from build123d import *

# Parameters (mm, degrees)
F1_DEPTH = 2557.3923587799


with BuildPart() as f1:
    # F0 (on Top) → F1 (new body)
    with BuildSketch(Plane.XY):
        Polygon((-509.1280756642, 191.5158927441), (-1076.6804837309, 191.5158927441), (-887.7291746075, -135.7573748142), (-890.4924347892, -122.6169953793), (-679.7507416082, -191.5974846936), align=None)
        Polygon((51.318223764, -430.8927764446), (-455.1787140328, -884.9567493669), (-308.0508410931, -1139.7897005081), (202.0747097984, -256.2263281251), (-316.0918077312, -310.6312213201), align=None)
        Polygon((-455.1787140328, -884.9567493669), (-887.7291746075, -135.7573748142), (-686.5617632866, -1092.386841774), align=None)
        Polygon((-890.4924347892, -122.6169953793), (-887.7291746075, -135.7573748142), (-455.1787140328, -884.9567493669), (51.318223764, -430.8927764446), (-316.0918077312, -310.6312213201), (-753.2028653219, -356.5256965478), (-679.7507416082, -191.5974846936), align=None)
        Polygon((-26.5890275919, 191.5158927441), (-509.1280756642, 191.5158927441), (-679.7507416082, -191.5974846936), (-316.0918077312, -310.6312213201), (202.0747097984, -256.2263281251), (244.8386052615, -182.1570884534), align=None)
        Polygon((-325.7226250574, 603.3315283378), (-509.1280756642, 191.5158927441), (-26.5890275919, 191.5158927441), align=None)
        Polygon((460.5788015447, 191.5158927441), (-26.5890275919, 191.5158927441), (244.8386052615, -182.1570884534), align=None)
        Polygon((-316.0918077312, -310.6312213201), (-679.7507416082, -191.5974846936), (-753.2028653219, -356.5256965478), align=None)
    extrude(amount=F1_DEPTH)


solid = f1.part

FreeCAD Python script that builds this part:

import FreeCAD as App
import Part
import Sketcher
from FreeCAD import Vector
Q = App.Units.Quantity

doc = App.newDocument("Part")
params = doc.addObject("Spreadsheet::Sheet", "Params")
for row, (alias, value) in enumerate([
    ("pad1_length", "2557.392359 mm"),
], start=1):
    params.set(f"A{row}", alias)
    params.set(f"B{row}", "=" + value)
    params.setAlias(f"B{row}", alias)

body = doc.addObject("PartDesign::Body", "Body")

# Sketch on XY plane
sketch1 = doc.addObject("Sketcher::SketchObject", "Sketch")
body.addObject(sketch1)
sketch1.AttachmentSupport = (doc.XY_Plane, [""])
sketch1.MapMode = "FlatFace"
sketch1.addGeometry(Part.LineSegment(Vector(-1077, 192, 0), Vector(-888, -136, 0)), False)
sketch1.addGeometry(Part.LineSegment(Vector(-888, -136, 0), Vector(-687, -1092, 0)), False)
sketch1.addGeometry(Part.LineSegment(Vector(-687, -1092, 0), Vector(-455, -885, 0)), False)
sketch1.addGeometry(Part.LineSegment(Vector(-455, -885, 0), Vector(-308, -1140, 0)), False)
sketch1.addGeometry(Part.LineSegment(Vector(-308, -1140, 0), Vector(461, 192, 0)), False)
sketch1.addGeometry(Part.LineSegment(Vector(461, 192, 0), Vector(-27, 192, 0)), False)
sketch1.addGeometry(Part.LineSegment(Vector(-27, 192, 0), Vector(-326, 603, 0)), False)
sketch1.addGeometry(Part.LineSegment(Vector(-326, 603, 0), Vector(-509, 192, 0)), False)
sketch1.addGeometry(Part.LineSegment(Vector(-509, 192, 0), Vector(-1077, 192, 0)), False)
sketch1.addConstraint(Sketcher.Constraint("Coincident", 0, 2, 1, 1))
sketch1.addConstraint(Sketcher.Constraint("Coincident", 1, 2, 2, 1))
sketch1.addConstraint(Sketcher.Constraint("Coincident", 2, 2, 3, 1))
sketch1.addConstraint(Sketcher.Constraint("Coincident", 3, 2, 4, 1))
sketch1.addConstraint(Sketcher.Constraint("Coincident", 4, 2, 5, 1))
sketch1.addConstraint(Sketcher.Constraint("Coincident", 5, 2, 6, 1))
sketch1.addConstraint(Sketcher.Constraint("Coincident", 6, 2, 7, 1))
sketch1.addConstraint(Sketcher.Constraint("Coincident", 7, 2, 8, 1))
sketch1.addConstraint(Sketcher.Constraint("Coincident", 8, 2, 0, 1))
sketch1.addConstraint(Sketcher.Constraint("Horizontal", 5))
sketch1.addConstraint(Sketcher.Constraint("Horizontal", 8))
sketch1.addConstraint(Sketcher.Constraint("Parallel", 0, 3))
sketch1.addConstraint(Sketcher.Constraint("Horizontal", 5, 2, 7, 2))
sketch1.addConstraint(Sketcher.Constraint("Angle", 0, Q("-60 deg")))
sketch1.addConstraint(Sketcher.Constraint("Angle", 4, Q("60 deg")))
sketch1.addConstraint(Sketcher.Constraint("DistanceX", 5, 2, 5, 1, Q("487.167829 mm")))
sketch1.addConstraint(Sketcher.Constraint("DistanceX", 8, 2, 8, 1, Q("567.552408 mm")))
sketch1.addConstraint(Sketcher.Constraint("DistanceY", 3, 2, -1, 1, Q("1139.789701 mm")))
sketch1.addConstraint(Sketcher.Constraint("DistanceX", -1, 1, 4, 2, Q("460.578802 mm")))
sketch1.addConstraint(Sketcher.Constraint("DistanceX", 0, 2, 7, 2, Q("378.601099 mm")))
sketch1.addConstraint(Sketcher.Constraint("Distance", 1, Q("977.55218 mm")))
sketch1.addConstraint(Sketcher.Constraint("DistanceY", 1, 2, -1, 1, Q("1092.386842 mm")))
sketch1.addConstraint(Sketcher.Constraint("DistanceY", 2, 2, -1, 1, Q("884.956749 mm")))
sketch1.addConstraint(Sketcher.Constraint("DistanceX", 3, 2, -1, 1, Q("308.050841 mm")))
sketch1.addConstraint(Sketcher.Constraint("DistanceY", -1, 1, 6, 2, Q("603.331528 mm")))
sketch1.addConstraint(Sketcher.Constraint("DistanceX", 1, 2, 2, 2, Q("231.383049 mm")))
sketch1.addConstraint(Sketcher.Constraint("DistanceX", 0, 2, 6, 2, Q("562.00655 mm")))
pad1 = doc.addObject("PartDesign::Pad", "Pad")
body.addObject(pad1)
pad1.Profile = sketch1
pad1.setExpression("Length", "Params.pad1_length")

doc.recompute()
